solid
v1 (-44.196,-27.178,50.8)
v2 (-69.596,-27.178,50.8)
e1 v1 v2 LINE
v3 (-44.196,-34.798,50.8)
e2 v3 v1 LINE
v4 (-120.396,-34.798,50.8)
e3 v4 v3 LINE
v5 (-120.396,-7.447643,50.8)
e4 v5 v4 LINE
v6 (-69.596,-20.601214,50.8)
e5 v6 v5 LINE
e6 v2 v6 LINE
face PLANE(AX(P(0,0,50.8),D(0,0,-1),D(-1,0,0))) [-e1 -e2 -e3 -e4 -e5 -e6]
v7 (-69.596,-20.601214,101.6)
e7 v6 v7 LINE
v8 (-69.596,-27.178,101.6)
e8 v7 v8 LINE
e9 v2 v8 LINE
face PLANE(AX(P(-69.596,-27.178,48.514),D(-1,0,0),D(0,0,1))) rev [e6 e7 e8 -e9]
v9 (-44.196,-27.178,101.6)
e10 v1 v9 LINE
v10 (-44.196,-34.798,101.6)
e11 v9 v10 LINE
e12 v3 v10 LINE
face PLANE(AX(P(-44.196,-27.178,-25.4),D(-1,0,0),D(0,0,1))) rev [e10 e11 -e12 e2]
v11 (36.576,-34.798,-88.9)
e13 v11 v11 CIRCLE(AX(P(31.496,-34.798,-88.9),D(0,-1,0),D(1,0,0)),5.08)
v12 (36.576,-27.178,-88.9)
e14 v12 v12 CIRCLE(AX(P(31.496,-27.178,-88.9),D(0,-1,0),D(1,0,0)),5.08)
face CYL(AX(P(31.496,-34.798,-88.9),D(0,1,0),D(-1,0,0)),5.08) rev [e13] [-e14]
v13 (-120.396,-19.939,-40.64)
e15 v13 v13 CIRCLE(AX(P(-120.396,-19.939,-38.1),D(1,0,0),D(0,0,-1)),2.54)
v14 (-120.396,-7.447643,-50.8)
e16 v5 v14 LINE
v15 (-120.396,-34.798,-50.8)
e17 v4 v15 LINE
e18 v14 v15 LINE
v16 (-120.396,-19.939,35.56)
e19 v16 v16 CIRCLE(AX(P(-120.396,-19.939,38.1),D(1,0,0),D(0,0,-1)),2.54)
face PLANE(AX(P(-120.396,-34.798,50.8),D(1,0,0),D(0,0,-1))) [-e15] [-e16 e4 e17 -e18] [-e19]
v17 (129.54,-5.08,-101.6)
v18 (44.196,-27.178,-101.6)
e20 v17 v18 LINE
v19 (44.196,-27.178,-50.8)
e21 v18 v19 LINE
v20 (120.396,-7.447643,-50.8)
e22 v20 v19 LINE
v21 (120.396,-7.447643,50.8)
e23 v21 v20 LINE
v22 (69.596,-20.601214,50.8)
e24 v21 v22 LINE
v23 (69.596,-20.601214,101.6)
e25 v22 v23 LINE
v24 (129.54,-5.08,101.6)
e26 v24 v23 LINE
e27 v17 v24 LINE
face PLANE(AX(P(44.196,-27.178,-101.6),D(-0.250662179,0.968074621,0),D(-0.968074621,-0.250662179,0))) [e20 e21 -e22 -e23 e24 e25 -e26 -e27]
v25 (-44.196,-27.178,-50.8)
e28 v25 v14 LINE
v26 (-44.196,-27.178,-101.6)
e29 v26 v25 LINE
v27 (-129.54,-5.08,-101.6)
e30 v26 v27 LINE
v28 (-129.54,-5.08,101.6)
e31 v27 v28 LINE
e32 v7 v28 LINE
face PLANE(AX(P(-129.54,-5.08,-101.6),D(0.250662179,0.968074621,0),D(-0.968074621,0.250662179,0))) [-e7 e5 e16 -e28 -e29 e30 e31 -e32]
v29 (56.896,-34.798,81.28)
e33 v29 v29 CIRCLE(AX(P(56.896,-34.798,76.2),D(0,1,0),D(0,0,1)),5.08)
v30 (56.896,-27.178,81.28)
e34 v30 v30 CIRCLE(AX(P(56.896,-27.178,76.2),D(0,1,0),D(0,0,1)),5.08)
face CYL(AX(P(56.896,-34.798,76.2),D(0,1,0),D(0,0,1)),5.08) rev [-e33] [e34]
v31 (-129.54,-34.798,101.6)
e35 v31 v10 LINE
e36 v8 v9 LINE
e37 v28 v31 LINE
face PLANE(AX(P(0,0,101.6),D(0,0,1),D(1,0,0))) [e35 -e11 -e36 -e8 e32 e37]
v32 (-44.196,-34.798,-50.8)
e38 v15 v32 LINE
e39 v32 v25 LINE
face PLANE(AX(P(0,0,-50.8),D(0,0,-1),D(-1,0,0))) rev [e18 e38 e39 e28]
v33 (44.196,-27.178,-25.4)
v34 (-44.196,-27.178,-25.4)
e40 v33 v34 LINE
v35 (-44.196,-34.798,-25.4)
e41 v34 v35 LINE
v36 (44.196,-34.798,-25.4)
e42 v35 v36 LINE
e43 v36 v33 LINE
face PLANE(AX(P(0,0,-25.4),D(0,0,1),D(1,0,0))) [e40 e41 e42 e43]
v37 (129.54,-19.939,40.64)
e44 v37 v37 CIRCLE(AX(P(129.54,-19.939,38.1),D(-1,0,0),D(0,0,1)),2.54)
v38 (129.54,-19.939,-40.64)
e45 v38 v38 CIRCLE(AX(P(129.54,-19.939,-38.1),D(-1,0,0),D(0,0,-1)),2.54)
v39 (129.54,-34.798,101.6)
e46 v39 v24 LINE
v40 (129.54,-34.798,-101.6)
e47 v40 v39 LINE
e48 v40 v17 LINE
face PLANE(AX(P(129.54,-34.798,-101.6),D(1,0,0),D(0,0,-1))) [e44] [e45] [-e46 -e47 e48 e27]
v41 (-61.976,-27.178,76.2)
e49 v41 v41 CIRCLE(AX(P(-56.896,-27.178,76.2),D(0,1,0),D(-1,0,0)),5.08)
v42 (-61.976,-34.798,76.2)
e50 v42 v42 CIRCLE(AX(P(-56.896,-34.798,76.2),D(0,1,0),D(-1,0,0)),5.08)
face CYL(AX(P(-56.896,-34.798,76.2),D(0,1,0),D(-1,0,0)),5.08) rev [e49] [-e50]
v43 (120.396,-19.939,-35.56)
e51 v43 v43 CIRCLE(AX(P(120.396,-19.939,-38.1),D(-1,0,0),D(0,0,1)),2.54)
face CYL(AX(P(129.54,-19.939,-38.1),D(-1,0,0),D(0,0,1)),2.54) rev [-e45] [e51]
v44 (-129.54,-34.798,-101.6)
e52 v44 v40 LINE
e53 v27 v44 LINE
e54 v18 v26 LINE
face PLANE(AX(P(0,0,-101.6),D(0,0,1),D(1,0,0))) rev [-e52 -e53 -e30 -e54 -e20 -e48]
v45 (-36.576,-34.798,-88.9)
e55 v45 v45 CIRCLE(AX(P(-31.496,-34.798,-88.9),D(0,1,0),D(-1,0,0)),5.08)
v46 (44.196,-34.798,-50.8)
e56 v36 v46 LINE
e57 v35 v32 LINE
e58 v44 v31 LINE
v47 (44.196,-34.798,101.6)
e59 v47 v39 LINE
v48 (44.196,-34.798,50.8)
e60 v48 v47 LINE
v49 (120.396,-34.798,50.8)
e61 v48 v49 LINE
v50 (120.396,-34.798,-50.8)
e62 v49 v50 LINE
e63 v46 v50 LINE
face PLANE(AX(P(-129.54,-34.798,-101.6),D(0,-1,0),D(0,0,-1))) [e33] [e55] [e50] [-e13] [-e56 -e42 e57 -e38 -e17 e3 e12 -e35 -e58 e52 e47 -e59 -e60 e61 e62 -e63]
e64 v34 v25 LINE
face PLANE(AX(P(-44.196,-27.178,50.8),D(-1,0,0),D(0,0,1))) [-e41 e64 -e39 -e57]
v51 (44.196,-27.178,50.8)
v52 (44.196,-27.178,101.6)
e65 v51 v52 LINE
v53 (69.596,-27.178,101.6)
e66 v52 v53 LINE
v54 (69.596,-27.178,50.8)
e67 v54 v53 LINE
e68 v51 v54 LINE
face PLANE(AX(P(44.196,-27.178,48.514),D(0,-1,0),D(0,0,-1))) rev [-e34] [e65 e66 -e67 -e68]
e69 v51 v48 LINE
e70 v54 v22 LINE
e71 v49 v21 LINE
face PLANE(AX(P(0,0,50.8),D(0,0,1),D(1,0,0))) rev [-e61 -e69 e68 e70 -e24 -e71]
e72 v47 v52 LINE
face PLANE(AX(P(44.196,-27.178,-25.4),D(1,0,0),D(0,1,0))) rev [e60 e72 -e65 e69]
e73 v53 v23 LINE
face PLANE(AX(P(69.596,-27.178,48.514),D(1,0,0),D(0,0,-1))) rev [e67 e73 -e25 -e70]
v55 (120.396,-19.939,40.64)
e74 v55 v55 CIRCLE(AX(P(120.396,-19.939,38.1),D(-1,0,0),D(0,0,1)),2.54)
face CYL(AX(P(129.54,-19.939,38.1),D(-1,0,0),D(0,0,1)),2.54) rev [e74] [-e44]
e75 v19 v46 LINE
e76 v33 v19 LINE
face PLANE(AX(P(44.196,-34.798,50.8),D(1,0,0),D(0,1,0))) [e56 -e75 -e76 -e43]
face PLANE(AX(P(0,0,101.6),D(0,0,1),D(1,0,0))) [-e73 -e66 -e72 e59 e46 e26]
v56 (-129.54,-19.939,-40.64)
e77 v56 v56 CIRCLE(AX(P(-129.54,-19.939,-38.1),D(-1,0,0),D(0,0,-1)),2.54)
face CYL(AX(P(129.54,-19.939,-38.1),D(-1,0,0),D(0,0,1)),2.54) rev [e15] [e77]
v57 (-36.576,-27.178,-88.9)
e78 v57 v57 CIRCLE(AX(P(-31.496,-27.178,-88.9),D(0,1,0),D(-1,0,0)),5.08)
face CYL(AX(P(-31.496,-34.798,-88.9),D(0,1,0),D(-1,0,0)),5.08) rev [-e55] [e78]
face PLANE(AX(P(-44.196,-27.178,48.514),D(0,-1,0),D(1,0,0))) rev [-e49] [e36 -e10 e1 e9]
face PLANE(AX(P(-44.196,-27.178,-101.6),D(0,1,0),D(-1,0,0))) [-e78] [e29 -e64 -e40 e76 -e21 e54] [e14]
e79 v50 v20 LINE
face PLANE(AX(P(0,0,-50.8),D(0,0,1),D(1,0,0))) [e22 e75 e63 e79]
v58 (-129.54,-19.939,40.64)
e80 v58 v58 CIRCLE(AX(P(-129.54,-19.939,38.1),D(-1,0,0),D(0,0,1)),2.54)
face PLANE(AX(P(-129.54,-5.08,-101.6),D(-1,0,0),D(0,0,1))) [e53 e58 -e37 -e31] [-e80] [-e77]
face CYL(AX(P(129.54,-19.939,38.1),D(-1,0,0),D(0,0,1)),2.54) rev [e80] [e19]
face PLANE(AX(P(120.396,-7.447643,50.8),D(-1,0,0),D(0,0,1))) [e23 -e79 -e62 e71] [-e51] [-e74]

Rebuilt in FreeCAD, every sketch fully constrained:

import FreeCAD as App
import Part
import Sketcher
from FreeCAD import Vector
Q = App.Units.Quantity


def add_polygon(sketch, points):
    """Adds a closed chain of lines whose ends are joined by coincident constraints."""
    first, n = sketch.GeometryCount, len(points)
    for a, b in zip(points, points[1:] + points[:1]):
        sketch.addGeometry(Part.LineSegment(App.Vector(*a, 0), App.Vector(*b, 0)), False)
    for i in range(n):
        sketch.addConstraint(Sketcher.Constraint("Coincident", first + i, 2, first + (i + 1) % n, 1))

doc = App.newDocument("Part")
body = doc.addObject("PartDesign::Body", "Body")

sketch1 = body.newObject("Sketcher::SketchObject", "Sketch")
sketch1.AttachmentSupport = (doc.getObject("XZ_Plane"), [""])
sketch1.MapMode = "FlatFace"
add_polygon(sketch1, [(-130, -149), (-130, 149), (130, 149), (130, -149)])
sketch1.addConstraint([
    Sketcher.Constraint("Vertical", 0),
    Sketcher.Constraint("Horizontal", 1),
    Sketcher.Constraint("Vertical", 2),
    Sketcher.Constraint("Horizontal", 3),
    Sketcher.Constraint("Symmetric", 0, 2, 2, 2, -1, 1),
    Sketcher.Constraint("DistanceX", 1, 1, 1, 2, Q("10.2 in")),
    Sketcher.Constraint("DistanceY", 0, 1, 0, 2, Q("11.75 in")),
])
pad1 = body.newObject("PartDesign::Pad", "Pad")
pad1.Profile = sketch1
pad1.Length = Q("0.58 in")
pad1.Reversed = True

sketch2 = body.newObject("Sketcher::SketchObject", "Sketch001")
sketch2.AttachmentSupport = (doc.getObject("XZ_Plane"), [""])
sketch2.MapMode = "FlatFace"
add_polygon(sketch2, [(-130, 149), (-130, -149), (130, -149), (130, 149)])
sketch2.addConstraint([
    Sketcher.Constraint("Vertical", 0),
    Sketcher.Constraint("Horizontal", 1),
    Sketcher.Constraint("Vertical", 2),
    Sketcher.Constraint("Horizontal", 3),
    Sketcher.Constraint("Symmetric", 0, 2, 2, 2, -1, 1),
    Sketcher.Constraint("DistanceX", 1, 1, 1, 2, Q("10.2 in")),
    Sketcher.Constraint("DistanceY", 0, 2, 0, 1, Q("11.75 in")),
])
pad2 = body.newObject("PartDesign::Pad", "Pad001")
pad2.Profile = sketch2
pad2.Length = Q("0.87 in")

sketch3 = body.newObject("Sketcher::SketchObject", "Sketch002")
sketch3.AttachmentSupport = (doc.getObject("YZ_Plane"), [""])
sketch3.MapMode = "FlatFace"
sketch3.AttachmentOffset = App.Placement(Vector(0, 0, 5.1 * 25.4), App.Rotation())
add_polygon(sketch3, [(55, 190), (-63, 190), (-63, -190), (55, -190)])
add_polygon(sketch3, [(0, -149), (-22, 0), (0, 149), (15, 149), (15, -149)])
sketch3.addConstraint([
    Sketcher.Constraint("Horizontal", 0),
    Sketcher.Constraint("Vertical", 1),
    Sketcher.Constraint("Horizontal", 2),
    Sketcher.Constraint("Vertical", 3),
    Sketcher.Constraint("Horizontal", 6),
    Sketcher.Constraint("Vertical", 7),
    Sketcher.Constraint("Horizontal", 8),
    Sketcher.Constraint("Symmetric", 5, 2, 8, 2, -1, 1),
    Sketcher.Constraint("PointOnObject", 4, 2, -1),
    Sketcher.Constraint("PointOnObject", 5, 2, -2),
    Sketcher.Constraint("DistanceX", 6, 1, 6, 2, Q("0.58 in")),
    Sketcher.Constraint("DistanceY", 7, 2, 7, 1, Q("11.75 in")),
    Sketcher.Constraint("DistanceX", 4, 2, -1, 1, Q("0.87 in")),
    Sketcher.Constraint("DistanceX", 0, 2, 0, 1, Q("118.216 mm")),
    Sketcher.Constraint("DistanceY", 1, 2, 1, 1, Q("379.836 mm")),
    Sketcher.Constraint("DistanceX", 0, 2, -1, 1, Q("62.791 mm")),
    Sketcher.Constraint("DistanceY", -1, 1, 0, 2, Q("189.918 mm")),
])
pocket1 = body.newObject("PartDesign::Pocket", "Pocket")
pocket1.Profile = sketch3
pocket1.Length = Q("10.2 in")

sketch4 = body.newObject("Sketcher::SketchObject", "Sketch003")
sketch4.AttachmentSupport = (doc.getObject("XY_Plane"), [""])
sketch4.MapMode = "FlatFace"
sketch4.AttachmentOffset = App.Placement(Vector(0, 0, 5.875 * 25.4), App.Rotation())
add_polygon(sketch4, [(-170, 55), (-170, -63), (170, -63), (170, 55)])
add_polygon(sketch4, [(44, -22), (-44, -22), (-130, 0), (-130, 15), (130, 15), (130, 0)])
sketch4.addConstraint([
    Sketcher.Constraint("Vertical", 0),
    Sketcher.Constraint("Horizontal", 1),
    Sketcher.Constraint("Vertical", 2),
    Sketcher.Constraint("Horizontal", 3),
    Sketcher.Constraint("Horizontal", 4),
    Sketcher.Constraint("Vertical", 6),
    Sketcher.Constraint("Horizontal", 7),
    Sketcher.Constraint("Vertical", 8),
    Sketcher.Constraint("Symmetric", 5, 2, 8, 2, -1, 1),
    Sketcher.Constraint("PointOnObject", 5, 2, -1),
    Sketcher.Constraint("Equal", 5, 9),
    Sketcher.Constraint("DistanceX", 7, 1, 7, 2, Q("10.2 in")),
    Sketcher.Constraint("DistanceX", 4, 2, 4, 1, Q("3.48 in")),
    Sketcher.Constraint("DistanceY", 6, 1, 6, 2, Q("0.58 in")),
    Sketcher.Constraint("DistanceY", 4, 2, -1, 1, Q("0.87 in")),
    Sketcher.Constraint("DistanceX", 1, 1, 1, 2, Q("340.466 mm")),
    Sketcher.Constraint("DistanceY", 0, 2, 0, 1, Q("118.216 mm")),
    Sketcher.Constraint("DistanceX", 0, 2, -1, 1, Q("170.233 mm")),
    Sketcher.Constraint("DistanceY", 0, 2, -1, 1, Q("62.791 mm")),
])
pocket2 = body.newObject("PartDesign::Pocket", "Pocket001")
pocket2.Profile = sketch4
pocket2.Length = Q("11.75 in")
body2 = doc.addObject("PartDesign::Body", "Body001")

sketch5 = body2.newObject("Sketcher::SketchObject", "Sketch004")
sketch5.AttachmentSupport = (doc.getObject("XY_Plane001"), [""])
sketch5.MapMode = "FlatFace"
add_polygon(sketch5, [(130, -5), (44, -27), (-44, -27), (-130, -5), (-130, -35), (130, -35)])
sketch5.addConstraint([
    Sketcher.Constraint("Horizontal", 1),
    Sketcher.Constraint("Vertical", 3),
    Sketcher.Constraint("Horizontal", 4),
    Sketcher.Constraint("Vertical", 5),
    Sketcher.Constraint("Symmetric", 2, 2, 5, 2, -2),
    Sketcher.Constraint("Equal", 0, 2),
    Sketcher.Constraint("DistanceX", 4, 1, 4, 2, Q("10.2 in")),
    Sketcher.Constraint("DistanceX", 1, 2, 1, 1, Q("3.48 in")),
    Sketcher.Constraint("DistanceY", 3, 2, 3, 1, Q("1.17 in")),
    Sketcher.Constraint("DistanceY", 2, 2, -1, 1, Q("0.2 in")),
    Sketcher.Constraint("DistanceY", 3, 2, 1, 2, Q("0.3 in")),
])
pad3 = body2.newObject("PartDesign::Pad", "Pad002")
pad3.Profile = sketch5
pad3.Type = "TwoLengths"
pad3.Length = Q("4 in")
pad3.Length2 = Q("4 in")

sketch6 = body2.newObject("Sketcher::SketchObject", "Sketch005")
sketch6.AttachmentSupport = (doc.getObject("XY_Plane001"), [""])
sketch6.MapMode = "FlatFace"
sketch6.AttachmentOffset = App.Placement(Vector(0, 0, 4 * 25.4), App.Rotation())
add_polygon(sketch6, [(-44, -27), (-44, -35), (44, -35), (44, -27)])
sketch6.addConstraint([
    Sketcher.Constraint("Vertical", 0),
    Sketcher.Constraint("Horizontal", 1),
    Sketcher.Constraint("Vertical", 2),
    Sketcher.Constraint("Horizontal", 3),
    Sketcher.Constraint("DistanceY", 0, 2, 0, 1, Q("0.3 in")),
    Sketcher.Constraint("DistanceX", 1, 1, 1, 2, Q("3.48 in")),
    Sketcher.Constraint("DistanceX", 0, 2, -1, 1, Q("1.74 in")),
    Sketcher.Constraint("DistanceY", 0, 2, -1, 1, Q("1.37 in")),
])
pocket3 = body2.newObject("PartDesign::Pocket", "Pocket002")
pocket3.Profile = sketch6
pocket3.Length = Q("5 in")

sketch7 = body2.newObject("Sketcher::SketchObject", "Sketch006")
sketch7.AttachmentSupport = (doc.getObject("XY_Plane001"), [""])
sketch7.MapMode = "FlatFace"
add_polygon(sketch7, [(-44, -27), (-120, -7), (-120, -35), (-44, -35)])
add_polygon(sketch7, [(120, -7), (44, -27), (44, -35), (120, -35)])
sketch7.addConstraint([
    Sketcher.Constraint("Vertical", 1),
    Sketcher.Constraint("Horizontal", 2),
    Sketcher.Constraint("Vertical", 3),
    Sketcher.Constraint("Vertical", 5),
    Sketcher.Constraint("Horizontal", 6),
    Sketcher.Constraint("Vertical", 7),
    Sketcher.Constraint("Symmetric", 3, 2, 4, 2, -2),
    Sketcher.Constraint("Symmetric", 1, 2, 6, 2, -2),
    Sketcher.Constraint("Horizontal", 0, 2, 7, 2),
    Sketcher.Constraint("DistanceX", 2, 1, 2, 2, Q("3 in")),
    Sketcher.Constraint("DistanceY", 3, 1, 3, 2, Q("0.3 in")),
    Sketcher.Constraint("DistanceX", 0, 2, -1, 1, Q("4.74 in")),
    Sketcher.Constraint("DistanceY", 1, 2, -1, 1, Q("1.37 in")),
    Sketcher.Constraint("Distance", 0, Q("78.71294 mm")),
])
pocket4 = body2.newObject("PartDesign::Pocket", "Pocket003")
pocket4.Profile = sketch7
pocket4.Type = "TwoLengths"
pocket4.Length = Q("2 in")
pocket4.Length2 = Q("2 in")
pocket4.Reversed = True

sketch8 = body2.newObject("Sketcher::SketchObject", "Sketch007")
sketch8.AttachmentSupport = (doc.getObject("XY_Plane001"), [""])
sketch8.MapMode = "FlatFace"
sketch8.AttachmentOffset = App.Placement(Vector(0, 0, 4 * 25.4), App.Rotation())
add_polygon(sketch8, [(44, -21), (44, -27), (70, -27), (70, -21)])
sketch8.addConstraint([
    Sketcher.Constraint("Vertical", 0),
    Sketcher.Constraint("Horizontal", 1),
    Sketcher.Constraint("Vertical", 2),
    Sketcher.Constraint("Horizontal", 3),
    Sketcher.Constraint("DistanceX", 1, 1, 1, 2, Q("1 in")),
    Sketcher.Constraint("DistanceX", -1, 1, 0, 2, Q("1.74 in")),
    Sketcher.Constraint("DistanceY", 0, 2, -1, 1, Q("1.07 in")),
    Sketcher.Constraint("DistanceY", 0, 2, 0, 1, Q("6.576786 mm")),
])
pocket5 = body2.newObject("PartDesign::Pocket", "Pocket004")
pocket5.Profile = sketch8
pocket5.Length = Q("2.09 in")

sketch9 = body2.newObject("Sketcher::SketchObject", "Sketch008")
sketch9.AttachmentSupport = (doc.getObject("XY_Plane001"), [""])
sketch9.MapMode = "FlatFace"
sketch9.AttachmentOffset = App.Placement(Vector(0, 0, 4 * 25.4), App.Rotation())
add_polygon(sketch9, [(-70, -21), (-70, -27), (-44, -27), (-44, -21)])
sketch9.addConstraint([
    Sketcher.Constraint("Vertical", 0),
    Sketcher.Constraint("Horizontal", 1),
    Sketcher.Constraint("Vertical", 2),
    Sketcher.Constraint("Horizontal", 3),
    Sketcher.Constraint("DistanceX", 1, 1, 1, 2, Q("1 in")),
    Sketcher.Constraint("DistanceX", 0, 2, -1, 1, Q("2.74 in")),
    Sketcher.Constraint("DistanceY", 0, 2, -1, 1, Q("1.07 in")),
    Sketcher.Constraint("DistanceY", 0, 2, 0, 1, Q("6.576786 mm")),
])
pocket6 = body2.newObject("PartDesign::Pocket", "Pocket005")
pocket6.Profile = sketch9
pocket6.Length = Q("2.09 in")

sketch10 = body2.newObject("Sketcher::SketchObject", "Sketch009")
sketch10.AttachmentSupport = (doc.getObject("XZ_Plane001"), [""])
sketch10.MapMode = "FlatFace"
sketch10.AttachmentOffset = App.Placement(Vector(0, 0, 1.07 * 25.4), App.Rotation())
sketch10.addGeometry([
    Part.Circle(Vector(-31, -89, 0), Vector(0, 0, 1), 5),
    Part.Circle(Vector(31, -89, 0), Vector(0, 0, 1), 5),
], False)
sketch10.addConstraint([
    Sketcher.Constraint("Equal", 0, 1),
    Sketcher.Constraint("Symmetric", 0, 3, 1, 3, -2),
    Sketcher.Constraint("Diameter", 0, Q("0.4 in")),
    Sketcher.Constraint("DistanceY", 0, 3, -1, 1, Q("3.5 in")),
    Sketcher.Constraint("DistanceX", 0, 3, -1, 1, Q("1.24 in")),
])
pocket7 = body2.newObject("PartDesign::Pocket", "Pocket006")
pocket7.Profile = sketch10
pocket7.Type = "ThroughAll"
pocket7.Reversed = True

sketch11 = body2.newObject("Sketcher::SketchObject", "Sketch010")
sketch11.AttachmentSupport = (doc.getObject("YZ_Plane001"), [""])
sketch11.MapMode = "FlatFace"
sketch11.AttachmentOffset = App.Placement(Vector(0, 0, -5.1 * 25.4), App.Rotation())
sketch11.addGeometry([
    Part.Circle(Vector(-19.9, 38.1, 0), Vector(0, 0, 1), 2.5),
    Part.Circle(Vector(-19.9, -38.1, 0), Vector(0, 0, 1), 2.5),
], False)
sketch11.addConstraint([
    Sketcher.Constraint("Equal", 0, 1),
    Sketcher.Constraint("Symmetric", 0, 3, 1, 3, -1),
    Sketcher.Constraint("Diameter", 0, Q("0.2 in")),
    Sketcher.Constraint("DistanceY", 1, 3, 0, 3, Q("3 in")),
    Sketcher.Constraint("DistanceX", 0, 3, -1, 1, Q("0.785 in")),
])
pocket8 = body2.newObject("PartDesign::Pocket", "Pocket007")
pocket8.Profile = sketch11
pocket8.Type = "ThroughAll"
pocket8.Reversed = True

sketch12 = body2.newObject("Sketcher::SketchObject", "Sketch011")
sketch12.AttachmentSupport = (doc.getObject("XZ_Plane001"), [""])
sketch12.MapMode = "FlatFace"
sketch12.AttachmentOffset = App.Placement(Vector(0, 0, 1.07 * 25.4), App.Rotation())
sketch12.addGeometry(Part.Circle(Vector(-57, 76, 0), Vector(0, 0, 1), 5), False)
sketch12.addConstraint([
    Sketcher.Constraint("Diameter", 0, Q("0.4 in")),
    Sketcher.Constraint("DistanceY", -1, 1, 0, 3, Q("3 in")),
    Sketcher.Constraint("DistanceX", 0, 3, -1, 1, Q("2.24 in")),
])
pocket9 = body2.newObject("PartDesign::Pocket", "Pocket008")
pocket9.Profile = sketch12
pocket9.Type = "ThroughAll"
pocket9.Reversed = True

sketch13 = body2.newObject("Sketcher::SketchObject", "Sketch012")
sketch13.AttachmentSupport = (doc.getObject("XZ_Plane001"), [""])
sketch13.MapMode = "FlatFace"
sketch13.AttachmentOffset = App.Placement(Vector(0, 0, 1.07 * 25.4), App.Rotation())
sketch13.addGeometry(Part.Circle(Vector(57, 76, 0), Vector(0, 0, 1), 5), False)
sketch13.addConstraint([
    Sketcher.Constraint("Diameter", 0, Q("0.4 in")),
    Sketcher.Constraint("DistanceY", -1, 1, 0, 3, Q("3 in")),
    Sketcher.Constraint("DistanceX", -1, 1, 0, 3, Q("2.24 in")),
])
pocket10 = body2.newObject("PartDesign::Pocket", "Pocket009")
pocket10.Profile = sketch13
pocket10.Type = "ThroughAll"
pocket10.Reversed = True
body.Visibility = False

doc.recompute()
